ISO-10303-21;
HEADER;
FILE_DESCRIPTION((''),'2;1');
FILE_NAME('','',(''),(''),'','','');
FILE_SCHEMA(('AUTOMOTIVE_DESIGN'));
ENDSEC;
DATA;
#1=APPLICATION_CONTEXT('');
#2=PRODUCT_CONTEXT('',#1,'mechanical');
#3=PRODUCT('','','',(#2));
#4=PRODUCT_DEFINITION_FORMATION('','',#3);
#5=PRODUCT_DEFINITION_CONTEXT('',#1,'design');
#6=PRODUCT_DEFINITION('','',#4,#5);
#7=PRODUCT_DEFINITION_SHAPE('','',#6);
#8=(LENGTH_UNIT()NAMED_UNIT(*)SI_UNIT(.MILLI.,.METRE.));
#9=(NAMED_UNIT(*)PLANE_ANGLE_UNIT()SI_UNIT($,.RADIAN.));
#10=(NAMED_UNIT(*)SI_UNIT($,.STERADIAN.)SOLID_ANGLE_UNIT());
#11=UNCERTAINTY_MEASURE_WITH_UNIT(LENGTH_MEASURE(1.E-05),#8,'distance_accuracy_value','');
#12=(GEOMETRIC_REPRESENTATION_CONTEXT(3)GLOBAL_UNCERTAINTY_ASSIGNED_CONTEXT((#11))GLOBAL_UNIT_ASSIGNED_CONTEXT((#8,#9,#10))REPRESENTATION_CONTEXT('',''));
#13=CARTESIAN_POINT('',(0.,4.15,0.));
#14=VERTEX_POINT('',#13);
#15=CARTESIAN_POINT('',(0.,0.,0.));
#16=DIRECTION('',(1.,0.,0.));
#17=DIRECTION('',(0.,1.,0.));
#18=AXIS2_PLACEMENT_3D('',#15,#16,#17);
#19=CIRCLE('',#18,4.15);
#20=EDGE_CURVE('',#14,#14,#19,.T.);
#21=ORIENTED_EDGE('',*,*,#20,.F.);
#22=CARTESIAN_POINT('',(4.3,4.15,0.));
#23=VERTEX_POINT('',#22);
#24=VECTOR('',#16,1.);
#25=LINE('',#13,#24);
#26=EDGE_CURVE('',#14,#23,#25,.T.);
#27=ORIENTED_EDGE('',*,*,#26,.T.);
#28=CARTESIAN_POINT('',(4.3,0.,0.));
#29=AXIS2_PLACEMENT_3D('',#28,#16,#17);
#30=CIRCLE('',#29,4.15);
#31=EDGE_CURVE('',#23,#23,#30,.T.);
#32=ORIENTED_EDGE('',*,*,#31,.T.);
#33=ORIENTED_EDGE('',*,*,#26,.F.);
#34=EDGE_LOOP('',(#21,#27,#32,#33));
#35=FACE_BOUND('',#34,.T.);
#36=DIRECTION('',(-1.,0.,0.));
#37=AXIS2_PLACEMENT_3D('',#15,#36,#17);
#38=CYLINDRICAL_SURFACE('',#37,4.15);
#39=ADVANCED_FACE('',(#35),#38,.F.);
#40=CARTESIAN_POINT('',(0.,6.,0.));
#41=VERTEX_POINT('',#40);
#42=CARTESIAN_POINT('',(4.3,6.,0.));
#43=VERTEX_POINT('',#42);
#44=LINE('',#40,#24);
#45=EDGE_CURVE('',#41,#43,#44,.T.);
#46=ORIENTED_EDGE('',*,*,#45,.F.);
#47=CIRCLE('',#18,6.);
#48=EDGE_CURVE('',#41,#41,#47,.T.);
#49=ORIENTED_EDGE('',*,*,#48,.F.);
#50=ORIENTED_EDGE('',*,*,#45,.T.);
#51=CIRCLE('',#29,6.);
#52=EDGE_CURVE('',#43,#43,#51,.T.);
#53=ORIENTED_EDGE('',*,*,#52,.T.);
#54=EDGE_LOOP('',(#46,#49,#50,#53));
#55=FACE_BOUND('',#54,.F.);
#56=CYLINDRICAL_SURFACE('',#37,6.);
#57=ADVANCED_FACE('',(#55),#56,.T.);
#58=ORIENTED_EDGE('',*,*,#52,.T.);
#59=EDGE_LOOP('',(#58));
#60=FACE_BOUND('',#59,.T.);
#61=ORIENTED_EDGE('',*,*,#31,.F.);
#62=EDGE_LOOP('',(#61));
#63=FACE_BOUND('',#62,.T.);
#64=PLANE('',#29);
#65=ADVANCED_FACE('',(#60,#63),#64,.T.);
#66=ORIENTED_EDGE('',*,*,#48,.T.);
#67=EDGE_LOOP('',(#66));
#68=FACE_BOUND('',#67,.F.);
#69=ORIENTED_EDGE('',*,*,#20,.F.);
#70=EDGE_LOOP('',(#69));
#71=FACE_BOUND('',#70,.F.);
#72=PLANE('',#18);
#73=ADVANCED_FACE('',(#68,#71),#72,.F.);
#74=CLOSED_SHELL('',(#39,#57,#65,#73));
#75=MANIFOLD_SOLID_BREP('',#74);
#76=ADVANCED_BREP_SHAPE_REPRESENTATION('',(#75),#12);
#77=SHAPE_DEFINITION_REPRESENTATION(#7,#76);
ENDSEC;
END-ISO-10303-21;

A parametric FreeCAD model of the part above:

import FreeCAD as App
import Part
import Sketcher

doc = App.newDocument("Part")
body = doc.addObject("PartDesign::Body", "Body")

# Sketch on YZ plane
sketch1 = body.newObject("Sketcher::SketchObject", "Sketch")
sketch1.AttachmentSupport = (doc.getObject("YZ_Plane"), [""])
sketch1.MapMode = "FlatFace"
sketch1.addGeometry(Part.Circle(App.Vector(0, 0, 0), App.Vector(0, 0, 1), 6), False)
sketch1.addGeometry(Part.Circle(App.Vector(0, 0, 0), App.Vector(0, 0, 1), 4.2), False)
sketch1.addConstraint(Sketcher.Constraint("Coincident", 0, 3, -1, 1))
sketch1.addConstraint(Sketcher.Constraint("Coincident", 1, 3, -1, 1))
sketch1.addConstraint(Sketcher.Constraint("Diameter", 0, 12.0))
sketch1.addConstraint(Sketcher.Constraint("Diameter", 1, 8.3))
pad1 = body.newObject("PartDesign::Pad", "Pad")
pad1.Profile = sketch1
pad1.Length = 4.3

doc.recompute()
